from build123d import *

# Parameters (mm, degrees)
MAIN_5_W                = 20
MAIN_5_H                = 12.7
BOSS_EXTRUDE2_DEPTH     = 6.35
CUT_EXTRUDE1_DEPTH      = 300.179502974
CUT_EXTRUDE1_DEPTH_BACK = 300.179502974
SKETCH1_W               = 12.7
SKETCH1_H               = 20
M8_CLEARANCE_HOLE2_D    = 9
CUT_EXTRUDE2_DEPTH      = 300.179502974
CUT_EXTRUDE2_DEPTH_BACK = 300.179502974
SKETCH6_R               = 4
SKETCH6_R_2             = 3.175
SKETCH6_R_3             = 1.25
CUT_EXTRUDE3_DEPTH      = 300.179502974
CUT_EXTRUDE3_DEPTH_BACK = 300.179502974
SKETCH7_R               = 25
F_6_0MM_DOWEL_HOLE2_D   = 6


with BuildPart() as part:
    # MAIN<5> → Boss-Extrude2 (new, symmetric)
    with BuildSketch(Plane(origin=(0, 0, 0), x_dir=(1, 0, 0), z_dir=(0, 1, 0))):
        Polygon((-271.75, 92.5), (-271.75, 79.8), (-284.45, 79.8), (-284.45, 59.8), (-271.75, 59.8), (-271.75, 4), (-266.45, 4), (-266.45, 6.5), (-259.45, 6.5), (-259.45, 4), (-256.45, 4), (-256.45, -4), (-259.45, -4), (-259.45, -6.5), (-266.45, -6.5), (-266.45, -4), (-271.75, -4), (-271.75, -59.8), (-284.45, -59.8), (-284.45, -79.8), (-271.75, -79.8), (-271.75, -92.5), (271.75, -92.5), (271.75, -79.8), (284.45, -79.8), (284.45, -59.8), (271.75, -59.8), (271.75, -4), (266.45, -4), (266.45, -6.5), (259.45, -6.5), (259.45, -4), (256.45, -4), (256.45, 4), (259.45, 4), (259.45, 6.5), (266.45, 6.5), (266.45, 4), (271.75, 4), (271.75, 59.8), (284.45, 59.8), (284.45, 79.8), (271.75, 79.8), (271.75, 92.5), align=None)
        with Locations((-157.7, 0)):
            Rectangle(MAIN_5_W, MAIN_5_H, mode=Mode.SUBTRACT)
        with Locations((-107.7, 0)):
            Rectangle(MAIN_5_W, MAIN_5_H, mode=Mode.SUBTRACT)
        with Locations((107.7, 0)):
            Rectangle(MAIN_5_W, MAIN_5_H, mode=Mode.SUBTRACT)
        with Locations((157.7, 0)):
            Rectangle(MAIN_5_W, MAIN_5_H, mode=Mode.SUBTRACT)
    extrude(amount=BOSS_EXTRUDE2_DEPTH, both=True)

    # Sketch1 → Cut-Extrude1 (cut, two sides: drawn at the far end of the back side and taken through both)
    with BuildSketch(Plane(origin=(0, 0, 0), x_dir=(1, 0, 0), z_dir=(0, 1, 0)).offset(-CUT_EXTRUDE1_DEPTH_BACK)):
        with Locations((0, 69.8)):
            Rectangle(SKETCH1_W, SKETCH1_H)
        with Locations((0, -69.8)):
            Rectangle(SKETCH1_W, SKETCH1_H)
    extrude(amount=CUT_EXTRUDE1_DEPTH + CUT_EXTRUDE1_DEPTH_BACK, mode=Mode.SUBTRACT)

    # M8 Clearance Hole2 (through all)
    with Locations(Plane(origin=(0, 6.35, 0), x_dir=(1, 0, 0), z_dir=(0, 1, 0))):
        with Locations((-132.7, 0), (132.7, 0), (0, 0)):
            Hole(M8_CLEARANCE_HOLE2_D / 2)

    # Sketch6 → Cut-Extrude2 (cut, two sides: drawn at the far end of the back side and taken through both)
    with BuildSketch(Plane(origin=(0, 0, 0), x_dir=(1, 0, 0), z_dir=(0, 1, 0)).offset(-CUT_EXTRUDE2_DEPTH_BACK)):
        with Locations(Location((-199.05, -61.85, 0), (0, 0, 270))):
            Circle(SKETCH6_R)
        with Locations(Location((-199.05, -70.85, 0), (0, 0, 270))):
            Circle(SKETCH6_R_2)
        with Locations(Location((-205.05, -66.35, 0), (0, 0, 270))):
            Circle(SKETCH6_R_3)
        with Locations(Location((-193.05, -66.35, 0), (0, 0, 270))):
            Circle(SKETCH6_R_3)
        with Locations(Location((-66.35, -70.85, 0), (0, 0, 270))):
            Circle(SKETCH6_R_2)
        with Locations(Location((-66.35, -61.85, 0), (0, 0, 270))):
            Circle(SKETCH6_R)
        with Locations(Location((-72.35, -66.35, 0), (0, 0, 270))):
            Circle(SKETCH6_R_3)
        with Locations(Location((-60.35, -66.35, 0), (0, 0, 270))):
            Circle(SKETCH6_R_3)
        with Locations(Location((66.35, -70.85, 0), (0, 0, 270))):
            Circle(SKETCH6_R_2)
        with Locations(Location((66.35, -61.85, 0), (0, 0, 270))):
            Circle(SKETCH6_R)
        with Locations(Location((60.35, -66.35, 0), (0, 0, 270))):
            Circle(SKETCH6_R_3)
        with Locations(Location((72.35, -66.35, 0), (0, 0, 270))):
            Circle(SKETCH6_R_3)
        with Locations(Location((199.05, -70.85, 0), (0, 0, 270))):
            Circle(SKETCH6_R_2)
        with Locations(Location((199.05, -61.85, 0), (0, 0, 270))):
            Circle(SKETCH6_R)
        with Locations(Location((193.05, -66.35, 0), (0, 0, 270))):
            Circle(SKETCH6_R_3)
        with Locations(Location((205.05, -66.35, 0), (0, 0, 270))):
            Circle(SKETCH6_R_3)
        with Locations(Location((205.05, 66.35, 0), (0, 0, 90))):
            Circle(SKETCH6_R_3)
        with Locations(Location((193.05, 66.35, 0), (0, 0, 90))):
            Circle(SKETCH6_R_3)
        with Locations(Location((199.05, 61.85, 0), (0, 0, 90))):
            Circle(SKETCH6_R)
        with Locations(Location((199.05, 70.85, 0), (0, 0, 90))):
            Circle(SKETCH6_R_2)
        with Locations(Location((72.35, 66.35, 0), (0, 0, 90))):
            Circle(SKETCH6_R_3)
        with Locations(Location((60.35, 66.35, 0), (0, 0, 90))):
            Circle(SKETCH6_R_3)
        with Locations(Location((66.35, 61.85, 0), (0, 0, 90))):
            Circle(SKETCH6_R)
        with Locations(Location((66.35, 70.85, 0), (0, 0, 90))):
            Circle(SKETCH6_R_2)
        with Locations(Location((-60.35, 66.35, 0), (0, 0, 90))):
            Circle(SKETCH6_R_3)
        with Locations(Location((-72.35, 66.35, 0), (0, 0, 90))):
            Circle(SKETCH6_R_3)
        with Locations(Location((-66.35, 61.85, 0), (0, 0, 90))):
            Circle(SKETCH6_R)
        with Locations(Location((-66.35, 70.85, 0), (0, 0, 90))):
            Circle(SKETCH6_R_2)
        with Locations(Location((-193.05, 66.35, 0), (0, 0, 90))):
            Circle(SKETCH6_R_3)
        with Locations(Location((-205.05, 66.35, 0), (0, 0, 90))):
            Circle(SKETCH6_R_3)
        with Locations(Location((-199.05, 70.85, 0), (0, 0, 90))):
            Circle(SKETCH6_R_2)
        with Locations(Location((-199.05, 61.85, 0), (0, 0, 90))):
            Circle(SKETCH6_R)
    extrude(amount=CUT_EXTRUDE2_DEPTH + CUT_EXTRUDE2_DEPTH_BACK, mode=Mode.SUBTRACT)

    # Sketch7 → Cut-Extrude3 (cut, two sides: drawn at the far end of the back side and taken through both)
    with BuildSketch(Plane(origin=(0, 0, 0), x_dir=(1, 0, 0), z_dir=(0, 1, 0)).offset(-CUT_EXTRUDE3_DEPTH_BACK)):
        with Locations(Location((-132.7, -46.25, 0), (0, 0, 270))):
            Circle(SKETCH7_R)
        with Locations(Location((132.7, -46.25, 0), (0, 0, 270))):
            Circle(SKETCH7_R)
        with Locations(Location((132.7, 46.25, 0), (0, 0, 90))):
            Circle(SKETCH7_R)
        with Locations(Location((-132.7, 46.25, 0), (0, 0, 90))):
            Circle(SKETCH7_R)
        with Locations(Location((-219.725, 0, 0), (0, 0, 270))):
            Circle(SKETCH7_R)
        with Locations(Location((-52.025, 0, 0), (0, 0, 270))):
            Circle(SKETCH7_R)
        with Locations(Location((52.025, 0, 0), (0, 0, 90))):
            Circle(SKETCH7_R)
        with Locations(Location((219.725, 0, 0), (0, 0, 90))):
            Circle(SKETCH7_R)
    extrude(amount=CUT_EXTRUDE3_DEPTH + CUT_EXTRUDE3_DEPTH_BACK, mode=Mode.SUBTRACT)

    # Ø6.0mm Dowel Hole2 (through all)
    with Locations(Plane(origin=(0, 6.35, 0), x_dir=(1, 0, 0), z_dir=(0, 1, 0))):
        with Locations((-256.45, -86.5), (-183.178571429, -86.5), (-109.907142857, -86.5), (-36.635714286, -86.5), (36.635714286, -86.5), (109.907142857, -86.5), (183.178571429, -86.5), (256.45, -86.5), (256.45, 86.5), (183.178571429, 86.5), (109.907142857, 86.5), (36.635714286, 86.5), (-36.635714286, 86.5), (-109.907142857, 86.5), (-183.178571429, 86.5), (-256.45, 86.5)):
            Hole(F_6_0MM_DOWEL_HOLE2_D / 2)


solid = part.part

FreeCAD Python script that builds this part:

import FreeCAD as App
import Part
import Sketcher

V = App.Vector

doc = App.newDocument("Part")
params = doc.addObject("Spreadsheet::Sheet", "Params")
for row, (alias, value) in enumerate([
    ("sketch1_width", "7 mm"),
    ("sketch1_width2", "3 mm"),
    ("sketch1_width3", "20 mm"),
    ("sketch1_height", "8 mm"),
    ("sketch1_width4", "12.7 mm"),
    ("pad1_length", "12.7 mm"),
    ("sketch2_height", "20 mm"),
    ("sketch2_width", "12.7 mm"),
    ("sketch3_diameter", "9 mm"),
    ("hole_diameter", "9 mm"),
    ("sketch4_diameter", "8 mm"),
    ("sketch4_diameter2", "2.5 mm"),
    ("sketch4_diameter3", "6.35 mm"),
    ("sketch5_diameter", "50 mm"),
    ("sketch6_diameter", "6 mm"),
    ("hole2_diameter", "6 mm"),
], start=1):
    params.set(f"A{row}", alias)
    params.set(f"B{row}", "=" + value)
    params.setAlias(f"B{row}", alias)

body = doc.addObject("PartDesign::Body", "Body")

sketch1 = doc.addObject("Sketcher::SketchObject", "Sketch")
body.addObject(sketch1)
sketch1.AttachmentSupport = (doc.XZ_Plane, [""])
sketch1.MapMode = "FlatFace"
sketch1.addGeometry(Part.LineSegment(V(-271.8, -92.5, 0), V(-271.8, -79.8, 0)), False)
sketch1.addGeometry(Part.LineSegment(V(-271.8, -79.8, 0), V(-284.4, -79.8, 0)), False)
sketch1.addGeometry(Part.LineSegment(V(-284.4, -79.8, 0), V(-284.4, -59.8, 0)), False)
sketch1.addGeometry(Part.LineSegment(V(-284.4, -59.8, 0), V(-271.8, -59.8, 0)), False)
sketch1.addGeometry(Part.LineSegment(V(-271.8, -59.8, 0), V(-271.8, -4, 0)), False)
sketch1.addGeometry(Part.LineSegment(V(-271.8, -4, 0), V(-266.4, -4, 0)), False)
sketch1.addGeometry(Part.LineSegment(V(-266.4, -4, 0), V(-266.4, -6.5, 0)), False)
sketch1.addGeometry(Part.LineSegment(V(-266.4, -6.5, 0), V(-259.4, -6.5, 0)), False)
sketch1.addGeometry(Part.LineSegment(V(-259.4, -6.5, 0), V(-259.4, -4, 0)), False)
sketch1.addGeometry(Part.LineSegment(V(-259.4, -4, 0), V(-256.4, -4, 0)), False)
sketch1.addGeometry(Part.LineSegment(V(-256.4, -4, 0), V(-256.4, 4, 0)), False)
sketch1.addGeometry(Part.LineSegment(V(-256.4, 4, 0), V(-259.4, 4, 0)), False)
sketch1.addGeometry(Part.LineSegment(V(-259.4, 4, 0), V(-259.4, 6.5, 0)), False)
sketch1.addGeometry(Part.LineSegment(V(-259.4, 6.5, 0), V(-266.4, 6.5, 0)), False)
sketch1.addGeometry(Part.LineSegment(V(-266.4, 6.5, 0), V(-266.4, 4, 0)), False)
sketch1.addGeometry(Part.LineSegment(V(-266.4, 4, 0), V(-271.8, 4, 0)), False)
sketch1.addGeometry(Part.LineSegment(V(-271.8, 4, 0), V(-271.8, 59.8, 0)), False)
sketch1.addGeometry(Part.LineSegment(V(-271.8, 59.8, 0), V(-284.4, 59.8, 0)), False)
sketch1.addGeometry(Part.LineSegment(V(-284.4, 59.8, 0), V(-284.4, 79.8, 0)), False)
sketch1.addGeometry(Part.LineSegment(V(-284.4, 79.8, 0), V(-271.8, 79.8, 0)), False)
sketch1.addGeometry(Part.LineSegment(V(-271.8, 79.8, 0), V(-271.8, 92.5, 0)), False)
sketch1.addGeometry(Part.LineSegment(V(-271.8, 92.5, 0), V(271.8, 92.5, 0)), False)
sketch1.addGeometry(Part.LineSegment(V(271.8, 92.5, 0), V(271.8, 79.8, 0)), False)
sketch1.addGeometry(Part.LineSegment(V(271.8, 79.8, 0), V(284.4, 79.8, 0)), False)
sketch1.addGeometry(Part.LineSegment(V(284.4, 79.8, 0), V(284.4, 59.8, 0)), False)
sketch1.addGeometry(Part.LineSegment(V(284.4, 59.8, 0), V(271.8, 59.8, 0)), False)
sketch1.addGeometry(Part.LineSegment(V(271.8, 59.8, 0), V(271.8, 4, 0)), False)
sketch1.addGeometry(Part.LineSegment(V(271.8, 4, 0), V(266.4, 4, 0)), False)
sketch1.addGeometry(Part.LineSegment(V(266.4, 4, 0), V(266.4, 6.5, 0)), False)
sketch1.addGeometry(Part.LineSegment(V(266.4, 6.5, 0), V(259.4, 6.5, 0)), False)
sketch1.addGeometry(Part.LineSegment(V(259.4, 6.5, 0), V(259.4, 4, 0)), False)
sketch1.addGeometry(Part.LineSegment(V(259.4, 4, 0), V(256.4, 4, 0)), False)
sketch1.addGeometry(Part.LineSegment(V(256.4, 4, 0), V(256.4, -4, 0)), False)
sketch1.addGeometry(Part.LineSegment(V(256.4, -4, 0), V(259.4, -4, 0)), False)
sketch1.addGeometry(Part.LineSegment(V(259.4, -4, 0), V(259.4, -6.5, 0)), False)
sketch1.addGeometry(Part.LineSegment(V(259.4, -6.5, 0), V(266.4, -6.5, 0)), False)
sketch1.addGeometry(Part.LineSegment(V(266.4, -6.5, 0), V(266.4, -4, 0)), False)
sketch1.addGeometry(Part.LineSegment(V(266.4, -4, 0), V(271.8, -4, 0)), False)
sketch1.addGeometry(Part.LineSegment(V(271.8, -4, 0), V(271.8, -59.8, 0)), False)
sketch1.addGeometry(Part.LineSegment(V(271.8, -59.8, 0), V(284.4, -59.8, 0)), False)
sketch1.addGeometry(Part.LineSegment(V(284.4, -59.8, 0), V(284.4, -79.8, 0)), False)
sketch1.addGeometry(Part.LineSegment(V(284.4, -79.8, 0), V(271.8, -79.8, 0)), False)
sketch1.addGeometry(Part.LineSegment(V(271.8, -79.8, 0), V(271.8, -92.5, 0)), False)
sketch1.addGeometry(Part.LineSegment(V(271.8, -92.5, 0), V(-271.8, -92.5, 0)), False)
sketch1.addGeometry(Part.LineSegment(V(-147.7, 6.3, 0), V(-167.7, 6.3, 0)), False)
sketch1.addGeometry(Part.LineSegment(V(-167.7, 6.3, 0), V(-167.7, -6.3, 0)), False)
sketch1.addGeometry(Part.LineSegment(V(-167.7, -6.3, 0), V(-147.7, -6.3, 0)), False)
sketch1.addGeometry(Part.LineSegment(V(-147.7, -6.3, 0), V(-147.7, 6.3, 0)), False)
sketch1.addGeometry(Part.LineSegment(V(-97.7, 6.3, 0), V(-117.7, 6.3, 0)), False)
sketch1.addGeometry(Part.LineSegment(V(-117.7, 6.3, 0), V(-117.7, -6.3, 0)), False)
sketch1.addGeometry(Part.LineSegment(V(-117.7, -6.3, 0), V(-97.7, -6.3, 0)), False)
sketch1.addGeometry(Part.LineSegment(V(-97.7, -6.3, 0), V(-97.7, 6.3, 0)), False)
sketch1.addGeometry(Part.LineSegment(V(117.7, 6.3, 0), V(97.7, 6.3, 0)), False)
sketch1.addGeometry(Part.LineSegment(V(97.7, 6.3, 0), V(97.7, -6.3, 0)), False)
sketch1.addGeometry(Part.LineSegment(V(97.7, -6.3, 0), V(117.7, -6.3, 0)), False)
sketch1.addGeometry(Part.LineSegment(V(117.7, -6.3, 0), V(117.7, 6.3, 0)), False)
sketch1.addGeometry(Part.LineSegment(V(167.7, 6.3, 0), V(147.7, 6.3, 0)), False)
sketch1.addGeometry(Part.LineSegment(V(147.7, 6.3, 0), V(147.7, -6.3, 0)), False)
sketch1.addGeometry(Part.LineSegment(V(147.7, -6.3, 0), V(167.7, -6.3, 0)), False)
sketch1.addGeometry(Part.LineSegment(V(167.7, -6.3, 0), V(167.7, 6.3, 0)), False)
sketch1.addConstraint(Sketcher.Constraint("Coincident", 0, 2, 1, 1))
sketch1.addConstraint(Sketcher.Constraint("Coincident", 1, 2, 2, 1))
sketch1.addConstraint(Sketcher.Constraint("Coincident", 2, 2, 3, 1))
sketch1.addConstraint(Sketcher.Constraint("Coincident", 3, 2, 4, 1))
sketch1.addConstraint(Sketcher.Constraint("Coincident", 4, 2, 5, 1))
sketch1.addConstraint(Sketcher.Constraint("Coincident", 5, 2, 6, 1))
sketch1.addConstraint(Sketcher.Constraint("Coincident", 6, 2, 7, 1))
sketch1.addConstraint(Sketcher.Constraint("Coincident", 7, 2, 8, 1))
sketch1.addConstraint(Sketcher.Constraint("Coincident", 8, 2, 9, 1))
sketch1.addConstraint(Sketcher.Constraint("Coincident", 9, 2, 10, 1))
sketch1.addConstraint(Sketcher.Constraint("Coincident", 10, 2, 11, 1))
sketch1.addConstraint(Sketcher.Constraint("Coincident", 11, 2, 12, 1))
sketch1.addConstraint(Sketcher.Constraint("Coincident", 12, 2, 13, 1))
sketch1.addConstraint(Sketcher.Constraint("Coincident", 13, 2, 14, 1))
sketch1.addConstraint(Sketcher.Constraint("Coincident", 14, 2, 15, 1))
sketch1.addConstraint(Sketcher.Constraint("Coincident", 15, 2, 16, 1))
sketch1.addConstraint(Sketcher.Constraint("Coincident", 16, 2, 17, 1))
sketch1.addConstraint(Sketcher.Constraint("Coincident", 17, 2, 18, 1))
sketch1.addConstraint(Sketcher.Constraint("Coincident", 18, 2, 19, 1))
sketch1.addConstraint(Sketcher.Constraint("Coincident", 19, 2, 20, 1))
sketch1.addConstraint(Sketcher.Constraint("Coincident", 20, 2, 21, 1))
sketch1.addConstraint(Sketcher.Constraint("Coincident", 21, 2, 22, 1))
sketch1.addConstraint(Sketcher.Constraint("Coincident", 22, 2, 23, 1))
sketch1.addConstraint(Sketcher.Constraint("Coincident", 23, 2, 24, 1))
sketch1.addConstraint(Sketcher.Constraint("Coincident", 24, 2, 25, 1))
sketch1.addConstraint(Sketcher.Constraint("Coincident", 25, 2, 26, 1))
sketch1.addConstraint(Sketcher.Constraint("Coincident", 26, 2, 27, 1))
sketch1.addConstraint(Sketcher.Constraint("Coincident", 27, 2, 28, 1))
sketch1.addConstraint(Sketcher.Constraint("Coincident", 28, 2, 29, 1))
sketch1.addConstraint(Sketcher.Constraint("Coincident", 29, 2, 30, 1))
sketch1.addConstraint(Sketcher.Constraint("Coincident", 30, 2, 31, 1))
sketch1.addConstraint(Sketcher.Constraint("Coincident", 31, 2, 32, 1))
sketch1.addConstraint(Sketcher.Constraint("Coincident", 32, 2, 33, 1))
sketch1.addConstraint(Sketcher.Constraint("Coincident", 33, 2, 34, 1))
sketch1.addConstraint(Sketcher.Constraint("Coincident", 34, 2, 35, 1))
sketch1.addConstraint(Sketcher.Constraint("Coincident", 35, 2, 36, 1))
sketch1.addConstraint(Sketcher.Constraint("Coincident", 36, 2, 37, 1))
sketch1.addConstraint(Sketcher.Constraint("Coincident", 37, 2, 38, 1))
sketch1.addConstraint(Sketcher.Constraint("Coincident", 38, 2, 39, 1))
sketch1.addConstraint(Sketcher.Constraint("Coincident", 39, 2, 40, 1))
sketch1.addConstraint(Sketcher.Constraint("Coincident", 40, 2, 41, 1))
sketch1.addConstraint(Sketcher.Constraint("Coincident", 41, 2, 42, 1))
sketch1.addConstraint(Sketcher.Constraint("Coincident", 42, 2, 43, 1))
sketch1.addConstraint(Sketcher.Constraint("Coincident", 43, 2, 0, 1))
sketch1.addConstraint(Sketcher.Constraint("Coincident", 44, 2, 45, 1))
sketch1.addConstraint(Sketcher.Constraint("Coincident", 45, 2, 46, 1))
sketch1.addConstraint(Sketcher.Constraint("Coincident", 46, 2, 47, 1))
sketch1.addConstraint(Sketcher.Constraint("Coincident", 47, 2, 44, 1))
sketch1.addConstraint(Sketcher.Constraint("Coincident", 48, 2, 49, 1))
sketch1.addConstraint(Sketcher.Constraint("Coincident", 49, 2, 50, 1))
sketch1.addConstraint(Sketcher.Constraint("Coincident", 50, 2, 51, 1))
sketch1.addConstraint(Sketcher.Constraint("Coincident", 51, 2, 48, 1))
sketch1.addConstraint(Sketcher.Constraint("Coincident", 52, 2, 53, 1))
sketch1.addConstraint(Sketcher.Constraint("Coincident", 53, 2, 54, 1))
sketch1.addConstraint(Sketcher.Constraint("Coincident", 54, 2, 55, 1))
sketch1.addConstraint(Sketcher.Constraint("Coincident", 55, 2, 52, 1))
sketch1.addConstraint(Sketcher.Constraint("Coincident", 56, 2, 57, 1))
sketch1.addConstraint(Sketcher.Constraint("Coincident", 57, 2, 58, 1))
sketch1.addConstraint(Sketcher.Constraint("Coincident", 58, 2, 59, 1))
sketch1.addConstraint(Sketcher.Constraint("Coincident", 59, 2, 56, 1))
sketch1.addConstraint(Sketcher.Constraint("Vertical", 0))
sketch1.addConstraint(Sketcher.Constraint("Horizontal", 1))
sketch1.addConstraint(Sketcher.Constraint("Vertical", 2))
sketch1.addConstraint(Sketcher.Constraint("Horizontal", 3))
sketch1.addConstraint(Sketcher.Constraint("Vertical", 4))
sketch1.addConstraint(Sketcher.Constraint("Horizontal", 5))
sketch1.addConstraint(Sketcher.Constraint("Vertical", 6))
sketch1.addConstraint(Sketcher.Constraint("Horizontal", 7))
sketch1.addConstraint(Sketcher.Constraint("Vertical", 8))
sketch1.addConstraint(Sketcher.Constraint("Horizontal", 9))
sketch1.addConstraint(Sketcher.Constraint("Vertical", 10))
sketch1.addConstraint(Sketcher.Constraint("Horizontal", 11))
sketch1.addConstraint(Sketcher.Constraint("Vertical", 12))
sketch1.addConstraint(Sketcher.Constraint("Horizontal", 13))
sketch1.addConstraint(Sketcher.Constraint("Vertical", 14))
sketch1.addConstraint(Sketcher.Constraint("Horizontal", 15))
sketch1.addConstraint(Sketcher.Constraint("Vertical", 16))
sketch1.addConstraint(Sketcher.Constraint("Horizontal", 17))
sketch1.addConstraint(Sketcher.Constraint("Vertical", 18))
sketch1.addConstraint(Sketcher.Constraint("Horizontal", 19))
sketch1.addConstraint(Sketcher.Constraint("Vertical", 20))
sketch1.addConstraint(Sketcher.Constraint("Horizontal", 21))
sketch1.addConstraint(Sketcher.Constraint("Vertical", 22))
sketch1.addConstraint(Sketcher.Constraint("Horizontal", 23))
sketch1.addConstraint(Sketcher.Constraint("Vertical", 24))
sketch1.addConstraint(Sketcher.Constraint("Horizontal", 25))
sketch1.addConstraint(Sketcher.Constraint("Vertical", 26))
sketch1.addConstraint(Sketcher.Constraint("Horizontal", 27))
sketch1.addConstraint(Sketcher.Constraint("Vertical", 28))
sketch1.addConstraint(Sketcher.Constraint("Horizontal", 29))
sketch1.addConstraint(Sketcher.Constraint("Vertical", 30))
sketch1.addConstraint(Sketcher.Constraint("Horizontal", 31))
sketch1.addConstraint(Sketcher.Constraint("Vertical", 32))
sketch1.addConstraint(Sketcher.Constraint("Horizontal", 33))
sketch1.addConstraint(Sketcher.Constraint("Vertical", 34))
sketch1.addConstraint(Sketcher.Constraint("Horizontal", 35))
sketch1.addConstraint(Sketcher.Constraint("Vertical", 36))
sketch1.addConstraint(Sketcher.Constraint("Horizontal", 37))
sketch1.addConstraint(Sketcher.Constraint("Vertical", 38))
sketch1.addConstraint(Sketcher.Constraint("Horizontal", 39))
sketch1.addConstraint(Sketcher.Constraint("Vertical", 40))
sketch1.addConstraint(Sketcher.Constraint("Horizontal", 41))
sketch1.addConstraint(Sketcher.Constraint("Vertical", 42))
sketch1.addConstraint(Sketcher.Constraint("Horizontal", 43))
sketch1.addConstraint(Sketcher.Constraint("Horizontal", 44))
sketch1.addConstraint(Sketcher.Constraint("Vertical", 45))
sketch1.addConstraint(Sketcher.Constraint("Horizontal", 46))
sketch1.addConstraint(Sketcher.Constraint("Vertical", 47))
sketch1.addConstraint(Sketcher.Constraint("Horizontal", 48))
sketch1.addConstraint(Sketcher.Constraint("Vertical", 49))
sketch1.addConstraint(Sketcher.Constraint("Horizontal", 50))
sketch1.addConstraint(Sketcher.Constraint("Vertical", 51))
sketch1.addConstraint(Sketcher.Constraint("Horizontal", 52))
sketch1.addConstraint(Sketcher.Constraint("Vertical", 53))
sketch1.addConstraint(Sketcher.Constraint("Horizontal", 54))
sketch1.addConstraint(Sketcher.Constraint("Vertical", 55))
sketch1.addConstraint(Sketcher.Constraint("Horizontal", 56))
sketch1.addConstraint(Sketcher.Constraint("Vertical", 57))
sketch1.addConstraint(Sketcher.Constraint("Horizontal", 58))
sketch1.addConstraint(Sketcher.Constraint("Vertical", 59))
sketch1.addConstraint(Sketcher.Constraint("Symmetric", 0, 2, 22, 2, -1, 1))
sketch1.addConstraint(Sketcher.Constraint("Symmetric", 2, 2, 24, 2, -1, 1))
sketch1.addConstraint(Sketcher.Constraint("Symmetric", 4, 2, 26, 2, -1, 1))
sketch1.addConstraint(Sketcher.Constraint("Symmetric", 6, 2, 28, 2, -1, 1))
sketch1.addConstraint(Sketcher.Constraint("Symmetric", 8, 2, 30, 2, -1, 1))
sketch1.addConstraint(Sketcher.Constraint("Symmetric", 10, 2, 32, 2, -1, 1))
sketch1.addConstraint(Sketcher.Constraint("Symmetric", 12, 2, 34, 2, -1, 1))
sketch1.addConstraint(Sketcher.Constraint("Symmetric", 14, 2, 36, 2, -1, 1))
sketch1.addConstraint(Sketcher.Constraint("Symmetric", 16, 2, 38, 2, -1, 1))
sketch1.addConstraint(Sketcher.Constraint("Symmetric", 18, 2, 40, 2, -1, 1))
sketch1.addConstraint(Sketcher.Constraint("Symmetric", 20, 2, 42, 2, -1, 1))
sketch1.addConstraint(Sketcher.Constraint("Symmetric", 50, 2, 52, 2, -1, 1))
sketch1.addConstraint(Sketcher.Constraint("Symmetric", 48, 2, 54, 2, -1, 1))
sketch1.addConstraint(Sketcher.Constraint("Symmetric", 46, 2, 56, 2, -1, 1))
sketch1.addConstraint(Sketcher.Constraint("Symmetric", 44, 2, 58, 2, -1, 1))
sketch1.addConstraint(Sketcher.Constraint("Symmetric", 19, 2, 22, 2, -2))
sketch1.addConstraint(Sketcher.Constraint("Symmetric", 17, 2, 24, 2, -2))
sketch1.addConstraint(Sketcher.Constraint("Symmetric", 15, 2, 26, 2, -2))
sketch1.addConstraint(Sketcher.Constraint("Symmetric", 13, 2, 28, 2, -2))
sketch1.addConstraint(Sketcher.Constraint("Symmetric", 11, 2, 30, 2, -2))
sketch1.addConstraint(Sketcher.Constraint("Horizontal", 5, 2, 8, 2))
sketch1.addConstraint(Sketcher.Constraint("Horizontal", 47, 2, 48, 2))
sketch1.addConstraint(Sketcher.Constraint("Horizontal", 46, 2, 49, 2))
sketch1.addConstraint(Sketcher.Constraint("Horizontal", 51, 2, 52, 2))
sketch1.addConstraint(Sketcher.Constraint("Vertical", 0, 2, 3, 2))
sketch1.addConstraint(Sketcher.Constraint("Equal", 46, 48))
sketch1.addConstraint(Sketcher.Constraint("Equal", 41, 0))
sketch1.addConstraint(Sketcher.Constraint("Equal", 58, 2))
sketch1.addConstraint(Sketcher.Constraint("Equal", 42, 45))
sketch1.addConstraint(Sketcher.Constraint("DistanceX", 7, 1, 7, 2, 7.0))
sketch1.addConstraint(Sketcher.Constraint("DistanceX", 9, 1, 9, 2, 3.0))
sketch1.addConstraint(Sketcher.Constraint("DistanceX", 44, 2, 44, 1, 20.0))
sketch1.addConstraint(Sketcher.Constraint("DistanceY", 10, 1, 10, 2, 8.0))
sketch1.addConstraint(Sketcher.Constraint("DistanceX", 1, 2, 1, 1, 12.7))
sketch1.addConstraint(Sketcher.Constraint("DistanceX", 5, 1, 5, 2, 5.3))
sketch1.addConstraint(Sketcher.Constraint("DistanceX", 21, 1, 21, 2, 543.5))
sketch1.addConstraint(Sketcher.Constraint("DistanceY", 4, 1, 4, 2, 55.8))
sketch1.addConstraint(Sketcher.Constraint("DistanceY", 6, 2, 6, 1, 2.5))
sketch1.addConstraint(Sketcher.Constraint("DistanceX", 47, 2, 48, 2, 30.0))
sketch1.addConstraint(Sketcher.Constraint("DistanceX", 44, 2, -1, 1, 167.7))
sketch1.setExpression("Constraints[149]", "Params.sketch1_width")
sketch1.setExpression("Constraints[150]", "Params.sketch1_width2")
sketch1.setExpression("Constraints[151]", "Params.sketch1_width3")
sketch1.setExpression("Constraints[152]", "Params.sketch1_height")
sketch1.setExpression("Constraints[153]", "Params.sketch1_width4")
pad1 = doc.addObject("PartDesign::Pad", "Pad")
body.addObject(pad1)
pad1.Profile = sketch1
pad1.setExpression("Length", "Params.pad1_length")
pad1.Midplane = True

sketch2 = doc.addObject("Sketcher::SketchObject", "Sketch001")
body.addObject(sketch2)
sketch2.AttachmentSupport = (doc.XZ_Plane, [""])
sketch2.MapMode = "FlatFace"
sketch2.addGeometry(Part.LineSegment(V(-6, -80, 0), V(-6, -60, 0)), False)
sketch2.addGeometry(Part.LineSegment(V(-6, -60, 0), V(6, -60, 0)), False)
sketch2.addGeometry(Part.LineSegment(V(6, -60, 0), V(6, -80, 0)), False)
sketch2.addGeometry(Part.LineSegment(V(6, -80, 0), V(-6, -80, 0)), False)
sketch2.addGeometry(Part.LineSegment(V(-6, 60, 0), V(-6, 80, 0)), False)
sketch2.addGeometry(Part.LineSegment(V(-6, 80, 0), V(6, 80, 0)), False)
sketch2.addGeometry(Part.LineSegment(V(6, 80, 0), V(6, 60, 0)), False)
sketch2.addGeometry(Part.LineSegment(V(6, 60, 0), V(-6, 60, 0)), False)
sketch2.addConstraint(Sketcher.Constraint("Coincident", 0, 2, 1, 1))
sketch2.addConstraint(Sketcher.Constraint("Coincident", 1, 2, 2, 1))
sketch2.addConstraint(Sketcher.Constraint("Coincident", 2, 2, 3, 1))
sketch2.addConstraint(Sketcher.Constraint("Coincident", 3, 2, 0, 1))
sketch2.addConstraint(Sketcher.Constraint("Coincident", 4, 2, 5, 1))
sketch2.addConstraint(Sketcher.Constraint("Coincident", 5, 2, 6, 1))
sketch2.addConstraint(Sketcher.Constraint("Coincident", 6, 2, 7, 1))
sketch2.addConstraint(Sketcher.Constraint("Coincident", 7, 2, 4, 1))
sketch2.addConstraint(Sketcher.Constraint("Vertical", 0))
sketch2.addConstraint(Sketcher.Constraint("Horizontal", 1))
sketch2.addConstraint(Sketcher.Constraint("Vertical", 2))
sketch2.addConstraint(Sketcher.Constraint("Horizontal", 3))
sketch2.addConstraint(Sketcher.Constraint("Vertical", 4))
sketch2.addConstraint(Sketcher.Constraint("Horizontal", 5))
sketch2.addConstraint(Sketcher.Constraint("Vertical", 6))
sketch2.addConstraint(Sketcher.Constraint("Horizontal", 7))
sketch2.addConstraint(Sketcher.Constraint("Symmetric", 2, 2, 4, 2, -1, 1))
sketch2.addConstraint(Sketcher.Constraint("Symmetric", 0, 2, 6, 2, -1, 1))
sketch2.addConstraint(Sketcher.Constraint("Vertical", 3, 2, 4, 2))
sketch2.addConstraint(Sketcher.Constraint("DistanceY", 0, 1, 0, 2, 20.0))
sketch2.addConstraint(Sketcher.Constraint("DistanceX", 1, 1, 1, 2, 12.7))
sketch2.addConstraint(Sketcher.Constraint("DistanceY", 0, 2, -1, 1, 59.8))
sketch2.setExpression("Constraints[19]", "Params.sketch2_height")
sketch2.setExpression("Constraints[20]", "Params.sketch2_width")
pocket1 = doc.addObject("PartDesign::Pocket", "Pocket")
body.addObject(pocket1)
pocket1.Profile = sketch2
pocket1.Type = "ThroughAll"
pocket1.Midplane = True

sketch3 = doc.addObject("Sketcher::SketchObject", "Sketch002")
body.addObject(sketch3)
sketch3.AttachmentSupport = (doc.XZ_Plane, [""])
sketch3.MapMode = "FlatFace"
sketch3.AttachmentOffset = App.Placement(V(0, 0, -6.35), App.Rotation())
sketch3.addGeometry(Part.Circle(V(-132.7, 0, 0), V(0, 0, 1), 4.5), False)
sketch3.addGeometry(Part.Circle(V(132.7, 0, 0), V(0, 0, 1), 4.5), False)
sketch3.addGeometry(Part.Circle(V(0, 0, 0), V(0, 0, 1), 4.5), False)
sketch3.addConstraint(Sketcher.Constraint("Coincident", 2, 3, -1, 1))
sketch3.addConstraint(Sketcher.Constraint("Equal", 0, 1))
sketch3.addConstraint(Sketcher.Constraint("Equal", 1, 2))
sketch3.addConstraint(Sketcher.Constraint("Symmetric", 0, 3, 1, 3, -1, 1))
sketch3.addConstraint(Sketcher.Constraint("PointOnObject", 0, 3, -1))
sketch3.addConstraint(Sketcher.Constraint("Diameter", 0, 9.0))
sketch3.addConstraint(Sketcher.Constraint("DistanceX", 0, 3, -1, 1, 132.7))
sketch3.setExpression("Constraints[5]", "Params.sketch3_diameter")
doc.recompute()
hole = doc.addObject("PartDesign::Hole", "Hole")
body.addObject(hole)
hole.Profile = sketch3
hole.ThreadType = "None"
hole.setExpression("Diameter", "Params.hole_diameter")
hole.DepthType = "ThroughAll"
hole.Reversed = True

sketch4 = doc.addObject("Sketcher::SketchObject", "Sketch003")
body.addObject(sketch4)
sketch4.AttachmentSupport = (doc.XZ_Plane, [""])
sketch4.MapMode = "FlatFace"
sketch4.addGeometry(Part.Circle(V(-199.1, 61.9, 0), V(0, 0, 1), 4), False)
sketch4.addGeometry(Part.Circle(V(-199.1, 70.8, 0), V(0, 0, 1), 3.2), False)
sketch4.addGeometry(Part.Circle(V(-205.1, 66.3, 0), V(0, 0, 1), 1.2), False)
sketch4.addGeometry(Part.Circle(V(-193.1, 66.3, 0), V(0, 0, 1), 1.2), False)
sketch4.addGeometry(Part.Circle(V(-66.3, 70.8, 0), V(0, 0, 1), 3.2), False)
sketch4.addGeometry(Part.Circle(V(-66.3, 61.9, 0), V(0, 0, 1), 4), False)
sketch4.addGeometry(Part.Circle(V(-72.3, 66.3, 0), V(0, 0, 1), 1.2), False)
sketch4.addGeometry(Part.Circle(V(-60.4, 66.3, 0), V(0, 0, 1), 1.2), False)
sketch4.addGeometry(Part.Circle(V(66.3, 70.8, 0), V(0, 0, 1), 3.2), False)
sketch4.addGeometry(Part.Circle(V(66.3, 61.9, 0), V(0, 0, 1), 4), False)
sketch4.addGeometry(Part.Circle(V(60.4, 66.3, 0), V(0, 0, 1), 1.2), False)
sketch4.addGeometry(Part.Circle(V(72.3, 66.3, 0), V(0, 0, 1), 1.2), False)
sketch4.addGeometry(Part.Circle(V(199.1, 70.8, 0), V(0, 0, 1), 3.2), False)
sketch4.addGeometry(Part.Circle(V(199.1, 61.9, 0), V(0, 0, 1), 4), False)
sketch4.addGeometry(Part.Circle(V(193.1, 66.3, 0), V(0, 0, 1), 1.2), False)
sketch4.addGeometry(Part.Circle(V(205.1, 66.3, 0), V(0, 0, 1), 1.2), False)
sketch4.addGeometry(Part.Circle(V(205.1, -66.3, 0), V(0, 0, 1), 1.2), False)
sketch4.addGeometry(Part.Circle(V(193.1, -66.3, 0), V(0, 0, 1), 1.2), False)
sketch4.addGeometry(Part.Circle(V(199.1, -61.9, 0), V(0, 0, 1), 4), False)
sketch4.addGeometry(Part.Circle(V(199.1, -70.8, 0), V(0, 0, 1), 3.2), False)
sketch4.addGeometry(Part.Circle(V(72.3, -66.3, 0), V(0, 0, 1), 1.2), False)
sketch4.addGeometry(Part.Circle(V(60.4, -66.3, 0), V(0, 0, 1), 1.2), False)
sketch4.addGeometry(Part.Circle(V(66.3, -61.9, 0), V(0, 0, 1), 4), False)
sketch4.addGeometry(Part.Circle(V(66.3, -70.8, 0), V(0, 0, 1), 3.2), False)
sketch4.addGeometry(Part.Circle(V(-60.4, -66.3, 0), V(0, 0, 1), 1.2), False)
sketch4.addGeometry(Part.Circle(V(-72.3, -66.3, 0), V(0, 0, 1), 1.2), False)
sketch4.addGeometry(Part.Circle(V(-66.3, -61.9, 0), V(0, 0, 1), 4), False)
sketch4.addGeometry(Part.Circle(V(-66.3, -70.8, 0), V(0, 0, 1), 3.2), False)
sketch4.addGeometry(Part.Circle(V(-193.1, -66.3, 0), V(0, 0, 1), 1.2), False)
sketch4.addGeometry(Part.Circle(V(-205.1, -66.3, 0), V(0, 0, 1), 1.2), False)
sketch4.addGeometry(Part.Circle(V(-199.1, -70.8, 0), V(0, 0, 1), 3.2), False)
sketch4.addGeometry(Part.Circle(V(-199.1, -61.9, 0), V(0, 0, 1), 4), False)
sketch4.addConstraint(Sketcher.Constraint("Equal", 2, 3))
sketch4.addConstraint(Sketcher.Constraint("Equal", 1, 4))
sketch4.addConstraint(Sketcher.Constraint("Equal", 0, 5))
sketch4.addConstraint(Sketcher.Constraint("Equal", 3, 6))
sketch4.addConstraint(Sketcher.Constraint("Equal", 6, 7))
sketch4.addConstraint(Sketcher.Constraint("Equal", 4, 8))
sketch4.addConstraint(Sketcher.Constraint("Equal", 5, 9))
sketch4.addConstraint(Sketcher.Constraint("Equal", 7, 10))
sketch4.addConstraint(Sketcher.Constraint("Equal", 10, 11))
sketch4.addConstraint(Sketcher.Constraint("Equal", 8, 12))
sketch4.addConstraint(Sketcher.Constraint("Equal", 9, 13))
sketch4.addConstraint(Sketcher.Constraint("Equal", 11, 14))
sketch4.addConstraint(Sketcher.Constraint("Equal", 14, 15))
sketch4.addConstraint(Sketcher.Constraint("Equal", 15, 16))
sketch4.addConstraint(Sketcher.Constraint("Equal", 16, 17))
sketch4.addConstraint(Sketcher.Constraint("Equal", 13, 18))
sketch4.addConstraint(Sketcher.Constraint("Equal", 12, 19))
sketch4.addConstraint(Sketcher.Constraint("Equal", 17, 20))
sketch4.addConstraint(Sketcher.Constraint("Equal", 20, 21))
sketch4.addConstraint(Sketcher.Constraint("Equal", 18, 22))
sketch4.addConstraint(Sketcher.Constraint("Equal", 19, 23))
sketch4.addConstraint(Sketcher.Constraint("Equal", 21, 24))
sketch4.addConstraint(Sketcher.Constraint("Equal", 24, 25))
sketch4.addConstraint(Sketcher.Constraint("Equal", 22, 26))
sketch4.addConstraint(Sketcher.Constraint("Equal", 23, 27))
sketch4.addConstraint(Sketcher.Constraint("Equal", 25, 28))
sketch4.addConstraint(Sketcher.Constraint("Equal", 28, 29))
sketch4.addConstraint(Sketcher.Constraint("Equal", 27, 30))
sketch4.addConstraint(Sketcher.Constraint("Equal", 26, 31))
sketch4.addConstraint(Sketcher.Constraint("Symmetric", 2, 3, 16, 3, -1, 1))
sketch4.addConstraint(Sketcher.Constraint("Symmetric", 3, 3, 17, 3, -1, 1))
sketch4.addConstraint(Sketcher.Constraint("Symmetric", 0, 3, 18, 3, -1, 1))
sketch4.addConstraint(Sketcher.Constraint("Symmetric", 1, 3, 19, 3, -1, 1))
sketch4.addConstraint(Sketcher.Constraint("Symmetric", 6, 3, 20, 3, -1, 1))
sketch4.addConstraint(Sketcher.Constraint("Symmetric", 7, 3, 21, 3, -1, 1))
sketch4.addConstraint(Sketcher.Constraint("Symmetric", 5, 3, 22, 3, -1, 1))
sketch4.addConstraint(Sketcher.Constraint("Symmetric", 4, 3, 23, 3, -1, 1))
sketch4.addConstraint(Sketcher.Constraint("Symmetric", 10, 3, 24, 3, -1, 1))
sketch4.addConstraint(Sketcher.Constraint("Symmetric", 11, 3, 25, 3, -1, 1))
sketch4.addConstraint(Sketcher.Constraint("Symmetric", 9, 3, 26, 3, -1, 1))
sketch4.addConstraint(Sketcher.Constraint("Symmetric", 8, 3, 27, 3, -1, 1))
sketch4.addConstraint(Sketcher.Constraint("Symmetric", 14, 3, 28, 3, -1, 1))
sketch4.addConstraint(Sketcher.Constraint("Symmetric", 15, 3, 29, 3, -1, 1))
sketch4.addConstraint(Sketcher.Constraint("Symmetric", 12, 3, 30, 3, -1, 1))
sketch4.addConstraint(Sketcher.Constraint("Symmetric", 13, 3, 31, 3, -1, 1))
sketch4.addConstraint(Sketcher.Constraint("Symmetric", 4, 3, 8, 3, -2))
sketch4.addConstraint(Sketcher.Constraint("Symmetric", 5, 3, 9, 3, -2))
sketch4.addConstraint(Sketcher.Constraint("Symmetric", 7, 3, 10, 3, -2))
sketch4.addConstraint(Sketcher.Constraint("Symmetric", 6, 3, 11, 3, -2))
sketch4.addConstraint(Sketcher.Constraint("Symmetric", 1, 3, 12, 3, -2))
sketch4.addConstraint(Sketcher.Constraint("Symmetric", 0, 3, 13, 3, -2))
sketch4.addConstraint(Sketcher.Constraint("Symmetric", 3, 3, 14, 3, -2))
sketch4.addConstraint(Sketcher.Constraint("Symmetric", 2, 3, 15, 3, -2))
sketch4.addConstraint(Sketcher.Constraint("Horizontal", 2, 3, 3, 3))
sketch4.addConstraint(Sketcher.Constraint("Horizontal", 1, 3, 4, 3))
sketch4.addConstraint(Sketcher.Constraint("Horizontal", 0, 3, 5, 3))
sketch4.addConstraint(Sketcher.Constraint("Horizontal", 3, 3, 6, 3))
sketch4.addConstraint(Sketcher.Constraint("Horizontal", 6, 3, 7, 3))
sketch4.addConstraint(Sketcher.Constraint("Vertical", 0, 3, 1, 3))
sketch4.addConstraint(Sketcher.Constraint("Vertical", 4, 3, 5, 3))
sketch4.addConstraint(Sketcher.Constraint("Diameter", 0, 8.0))
sketch4.addConstraint(Sketcher.Constraint("Diameter", 2, 2.5))
sketch4.addConstraint(Sketcher.Constraint("Diameter", 1, 6.35))
sketch4.addConstraint(Sketcher.Constraint("DistanceY", 0, 3, 1, 3, 9.0))
sketch4.addConstraint(Sketcher.Constraint("DistanceX", 2, 3, 0, 3, 6.0))
sketch4.addConstraint(Sketcher.Constraint("DistanceX", 0, 3, 3, 3, 6.0))
sketch4.addConstraint(Sketcher.Constraint("DistanceX", 6, 3, 5, 3, 6.0))
sketch4.addConstraint(Sketcher.Constraint("DistanceX", 5, 3, 7, 3, 6.0))
sketch4.addConstraint(Sketcher.Constraint("DistanceY", 0, 3, 2, 3, 4.5))
sketch4.addConstraint(Sketcher.Constraint("DistanceX", 3, 3, 4, 3, 126.7))
sketch4.addConstraint(Sketcher.Constraint("DistanceX", 7, 3, 8, 3, 126.7))
sketch4.addConstraint(Sketcher.Constraint("DistanceY", 16, 3, 13, 3, 128.2))
sketch4.setExpression("Constraints[60]", "Params.sketch4_diameter")
sketch4.setExpression("Constraints[61]", "Params.sketch4_diameter2")
sketch4.setExpression("Constraints[62]", "Params.sketch4_diameter3")
pocket2 = doc.addObject("PartDesign::Pocket", "Pocket001")
body.addObject(pocket2)
pocket2.Profile = sketch4
pocket2.Type = "ThroughAll"
pocket2.Midplane = True

sketch5 = doc.addObject("Sketcher::SketchObject", "Sketch004")
body.addObject(sketch5)
sketch5.AttachmentSupport = (doc.XZ_Plane, [""])
sketch5.MapMode = "FlatFace"
sketch5.addGeometry(Part.Circle(V(-133, 46, 0), V(0, 0, 1), 25), False)
sketch5.addGeometry(Part.Circle(V(133, 46, 0), V(0, 0, 1), 25), False)
sketch5.addGeometry(Part.Circle(V(133, -46, 0), V(0, 0, 1), 25), False)
sketch5.addGeometry(Part.Circle(V(-133, -46, 0), V(0, 0, 1), 25), False)
sketch5.addGeometry(Part.Circle(V(-220, 0, 0), V(0, 0, 1), 25), False)
sketch5.addGeometry(Part.Circle(V(-52, 0, 0), V(0, 0, 1), 25), False)
sketch5.addGeometry(Part.Circle(V(52, 0, 0), V(0, 0, 1), 25), False)
sketch5.addGeometry(Part.Circle(V(220, 0, 0), V(0, 0, 1), 25), False)
sketch5.addConstraint(Sketcher.Constraint("Equal", 0, 1))
sketch5.addConstraint(Sketcher.Constraint("Equal", 1, 2))
sketch5.addConstraint(Sketcher.Constraint("Equal", 2, 3))
sketch5.addConstraint(Sketcher.Constraint("Equal", 3, 4))
sketch5.addConstraint(Sketcher.Constraint("Equal", 4, 5))
sketch5.addConstraint(Sketcher.Constraint("Equal", 5, 6))
sketch5.addConstraint(Sketcher.Constraint("Equal", 6, 7))
sketch5.addConstraint(Sketcher.Constraint("Symmetric", 0, 3, 2, 3, -1, 1))
sketch5.addConstraint(Sketcher.Constraint("Symmetric", 1, 3, 3, 3, -1, 1))
sketch5.addConstraint(Sketcher.Constraint("Symmetric", 5, 3, 6, 3, -1, 1))
sketch5.addConstraint(Sketcher.Constraint("Symmetric", 4, 3, 7, 3, -1, 1))
sketch5.addConstraint(Sketcher.Constraint("Symmetric", 0, 3, 1, 3, -2))
sketch5.addConstraint(Sketcher.Constraint("PointOnObject", 4, 3, -1))
sketch5.addConstraint(Sketcher.Constraint("PointOnObject", 5, 3, -1))
sketch5.addConstraint(Sketcher.Constraint("Diameter", 0, 50.0))
sketch5.addConstraint(Sketcher.Constraint("DistanceX", 0, 3, -1, 1, 132.7))
sketch5.addConstraint(Sketcher.Constraint("DistanceY", 2, 3, 1, 3, 92.5))
sketch5.addConstraint(Sketcher.Constraint("DistanceX", 4, 3, 5, 3, 167.7))
sketch5.addConstraint(Sketcher.Constraint("DistanceX", 5, 3, 6, 3, 104.05))
sketch5.setExpression("Constraints[14]", "Params.sketch5_diameter")
pocket3 = doc.addObject("PartDesign::Pocket", "Pocket002")
body.addObject(pocket3)
pocket3.Profile = sketch5
pocket3.Type = "ThroughAll"
pocket3.Midplane = True

sketch6 = doc.addObject("Sketcher::SketchObject", "Sketch005")
body.addObject(sketch6)
sketch6.AttachmentSupport = (doc.XZ_Plane, [""])
sketch6.MapMode = "FlatFace"
sketch6.AttachmentOffset = App.Placement(V(0, 0, -6.35), App.Rotation())
sketch6.addGeometry(Part.Circle(V(-256.4, 86.5, 0), V(0, 0, 1), 3), False)
sketch6.addGeometry(Part.Circle(V(-183.2, 86.5, 0), V(0, 0, 1), 3), False)
sketch6.addGeometry(Part.Circle(V(-109.9, 86.5, 0), V(0, 0, 1), 3), False)
sketch6.addGeometry(Part.Circle(V(-36.6, 86.5, 0), V(0, 0, 1), 3), False)
sketch6.addGeometry(Part.Circle(V(36.6, 86.5, 0), V(0, 0, 1), 3), False)
sketch6.addGeometry(Part.Circle(V(109.9, 86.5, 0), V(0, 0, 1), 3), False)
sketch6.addGeometry(Part.Circle(V(183.2, 86.5, 0), V(0, 0, 1), 3), False)
sketch6.addGeometry(Part.Circle(V(256.4, 86.5, 0), V(0, 0, 1), 3), False)
sketch6.addGeometry(Part.Circle(V(256.4, -86.5, 0), V(0, 0, 1), 3), False)
sketch6.addGeometry(Part.Circle(V(183.2, -86.5, 0), V(0, 0, 1), 3), False)
sketch6.addGeometry(Part.Circle(V(109.9, -86.5, 0), V(0, 0, 1), 3), False)
sketch6.addGeometry(Part.Circle(V(36.6, -86.5, 0), V(0, 0, 1), 3), False)
sketch6.addGeometry(Part.Circle(V(-36.6, -86.5, 0), V(0, 0, 1), 3), False)
sketch6.addGeometry(Part.Circle(V(-109.9, -86.5, 0), V(0, 0, 1), 3), False)
sketch6.addGeometry(Part.Circle(V(-183.2, -86.5, 0), V(0, 0, 1), 3), False)
sketch6.addGeometry(Part.Circle(V(-256.4, -86.5, 0), V(0, 0, 1), 3), False)
sketch6.addConstraint(Sketcher.Constraint("Equal", 0, 1))
sketch6.addConstraint(Sketcher.Constraint("Equal", 1, 2))
sketch6.addConstraint(Sketcher.Constraint("Equal", 2, 3))
sketch6.addConstraint(Sketcher.Constraint("Equal", 3, 4))
sketch6.addConstraint(Sketcher.Constraint("Equal", 4, 5))
sketch6.addConstraint(Sketcher.Constraint("Equal", 5, 6))
sketch6.addConstraint(Sketcher.Constraint("Equal", 6, 7))
sketch6.addConstraint(Sketcher.Constraint("Equal", 7, 8))
sketch6.addConstraint(Sketcher.Constraint("Equal", 8, 9))
sketch6.addConstraint(Sketcher.Constraint("Equal", 9, 10))
sketch6.addConstraint(Sketcher.Constraint("Equal", 10, 11))
sketch6.addConstraint(Sketcher.Constraint("Equal", 11, 12))
sketch6.addConstraint(Sketcher.Constraint("Equal", 12, 13))
sketch6.addConstraint(Sketcher.Constraint("Equal", 13, 14))
sketch6.addConstraint(Sketcher.Constraint("Equal", 14, 15))
sketch6.addConstraint(Sketcher.Constraint("Symmetric", 0, 3, 8, 3, -1, 1))
sketch6.addConstraint(Sketcher.Constraint("Symmetric", 1, 3, 9, 3, -1, 1))
sketch6.addConstraint(Sketcher.Constraint("Symmetric", 2, 3, 10, 3, -1, 1))
sketch6.addConstraint(Sketcher.Constraint("Symmetric", 3, 3, 11, 3, -1, 1))
sketch6.addConstraint(Sketcher.Constraint("Symmetric", 4, 3, 12, 3, -1, 1))
sketch6.addConstraint(Sketcher.Constraint("Symmetric", 5, 3, 13, 3, -1, 1))
sketch6.addConstraint(Sketcher.Constraint("Symmetric", 6, 3, 14, 3, -1, 1))
sketch6.addConstraint(Sketcher.Constraint("Symmetric", 7, 3, 15, 3, -1, 1))
sketch6.addConstraint(Sketcher.Constraint("Symmetric", 3, 3, 4, 3, -2))
sketch6.addConstraint(Sketcher.Constraint("Symmetric", 2, 3, 5, 3, -2))
sketch6.addConstraint(Sketcher.Constraint("Symmetric", 1, 3, 6, 3, -2))
sketch6.addConstraint(Sketcher.Constraint("Symmetric", 0, 3, 7, 3, -2))
sketch6.addConstraint(Sketcher.Constraint("Horizontal", 0, 3, 1, 3))
sketch6.addConstraint(Sketcher.Constraint("Horizontal", 1, 3, 2, 3))
sketch6.addConstraint(Sketcher.Constraint("Horizontal", 2, 3, 3, 3))
sketch6.addConstraint(Sketcher.Constraint("Diameter", 0, 6.0))
sketch6.addConstraint(Sketcher.Constraint("DistanceY", 8, 3, 7, 3, 173.0))
sketch6.addConstraint(Sketcher.Constraint("DistanceX", 0, 3, -1, 1, 256.45))
sketch6.addConstraint(Sketcher.Constraint("DistanceX", 1, 3, -1, 1, 183.178571))
sketch6.addConstraint(Sketcher.Constraint("DistanceX", 1, 3, 2, 3, 73.271429))
sketch6.addConstraint(Sketcher.Constraint("DistanceX", 2, 3, 3, 3, 73.271429))
sketch6.setExpression("Constraints[30]", "Params.sketch6_diameter")
doc.recompute()
hole2 = doc.addObject("PartDesign::Hole", "Hole001")
body.addObject(hole2)
hole2.Profile = sketch6
hole2.ThreadType = "None"
hole2.setExpression("Diameter", "Params.hole2_diameter")
hole2.DepthType = "ThroughAll"
hole2.Reversed = True

doc.recompute()
